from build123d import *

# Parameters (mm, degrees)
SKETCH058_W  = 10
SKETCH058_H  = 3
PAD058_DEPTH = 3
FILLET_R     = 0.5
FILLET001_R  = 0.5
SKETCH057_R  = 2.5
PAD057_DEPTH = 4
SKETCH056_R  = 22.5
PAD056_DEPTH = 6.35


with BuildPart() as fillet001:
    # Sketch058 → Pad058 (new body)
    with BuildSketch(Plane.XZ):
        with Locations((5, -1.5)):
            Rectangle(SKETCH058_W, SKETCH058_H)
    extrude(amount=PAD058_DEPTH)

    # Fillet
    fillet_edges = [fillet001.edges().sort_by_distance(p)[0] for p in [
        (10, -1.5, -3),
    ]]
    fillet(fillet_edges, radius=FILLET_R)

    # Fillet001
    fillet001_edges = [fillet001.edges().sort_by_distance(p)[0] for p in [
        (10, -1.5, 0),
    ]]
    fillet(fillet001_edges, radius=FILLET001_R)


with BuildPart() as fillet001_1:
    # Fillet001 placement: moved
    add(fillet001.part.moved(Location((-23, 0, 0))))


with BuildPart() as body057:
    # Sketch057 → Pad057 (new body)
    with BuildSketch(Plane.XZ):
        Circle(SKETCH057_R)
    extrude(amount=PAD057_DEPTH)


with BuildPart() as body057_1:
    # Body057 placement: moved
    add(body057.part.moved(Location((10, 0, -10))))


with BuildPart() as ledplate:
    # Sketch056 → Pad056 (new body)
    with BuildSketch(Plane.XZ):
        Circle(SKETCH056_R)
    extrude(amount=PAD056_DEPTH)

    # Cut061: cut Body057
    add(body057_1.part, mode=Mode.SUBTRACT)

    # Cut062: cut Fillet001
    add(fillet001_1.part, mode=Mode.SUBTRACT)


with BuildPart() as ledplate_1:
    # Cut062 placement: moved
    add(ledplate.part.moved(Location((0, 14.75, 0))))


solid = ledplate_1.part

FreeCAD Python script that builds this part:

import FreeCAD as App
import Part
import Sketcher

V = App.Vector


def edges_at(feature, points):
    """Names of the edges that pass closest to the given points."""
    edges = feature.Shape.Edges
    near = lambda p: min(range(len(edges)), key=lambda i: edges[i].distToShape(Part.Vertex(*p))[0])
    return sorted({f"Edge{near(p) + 1}" for p in points})


def add_polygon(sketch, points):
    """Adds a closed chain of lines whose ends are joined by coincident constraints."""
    first, n = sketch.GeometryCount, len(points)
    for a, b in zip(points, points[1:] + points[:1]):
        sketch.addGeometry(Part.LineSegment(App.Vector(*a, 0), App.Vector(*b, 0)), False)
    for i in range(n):
        sketch.addConstraint(Sketcher.Constraint("Coincident", first + i, 2, first + (i + 1) % n, 1))

doc = App.newDocument("Part")
params = doc.addObject("Spreadsheet::Sheet", "Params")
for row, (alias, value) in enumerate([
    ("sketch1_width", "10 mm"),
    ("sketch1_height", "3 mm"),
    ("pad1_length", "3 mm"),
    ("fillet_radius", "0.5 mm"),
    ("fillet2_radius", "0.5 mm"),
    ("sketch2_diameter", "5 mm"),
    ("pad2_length", "4 mm"),
    ("sketch3_diameter", "45 mm"),
    ("pad3_length", "6.35 mm"),
], start=1):
    params.set(f"A{row}", alias)
    params.set(f"B{row}", "=" + value)
    params.setAlias(f"B{row}", alias)

body = doc.addObject("PartDesign::Body", "Body")

sketch1 = body.newObject("Sketcher::SketchObject", "Sketch")
sketch1.AttachmentSupport = (doc.getObject("XZ_Plane"), [""])
sketch1.MapMode = "FlatFace"
add_polygon(sketch1, [(0, 0), (0, -3), (10, -3), (10, 0)])
sketch1.addConstraint([
    Sketcher.Constraint("Vertical", 0),
    Sketcher.Constraint("Horizontal", 1),
    Sketcher.Constraint("Vertical", 2),
    Sketcher.Constraint("Horizontal", 3),
    Sketcher.Constraint("Coincident", 3, 2, -1, 1),
    Sketcher.Constraint("DistanceX", 1, 1, 1, 2, 10.0),
    Sketcher.Constraint("DistanceY", 0, 2, 0, 1, 3.0),
])
sketch1.setExpression("Constraints[9]", "Params.sketch1_width")
sketch1.setExpression("Constraints[10]", "Params.sketch1_height")
pad1 = body.newObject("PartDesign::Pad", "Pad")
pad1.Profile = sketch1
pad1.setExpression("Length", "Params.pad1_length")
doc.recompute()

fillet = body.newObject("PartDesign::Fillet", "Fillet")
fillet.Base = (pad1, edges_at(pad1, [(10, -1.5, -3)]))
fillet.setExpression("Radius", "Params.fillet_radius")
doc.recompute()

fillet2 = body.newObject("PartDesign::Fillet", "Fillet001")
fillet2.Base = (fillet, edges_at(fillet, [(10, -1.5, 0)]))
fillet2.setExpression("Radius", "Params.fillet2_radius")
body2 = doc.addObject("PartDesign::Body", "Body001")
doc.recompute()

body.Placement = App.Placement(V(-23, 0, 0), App.Rotation(V(0, 0, 1), 0))
boolean = body2.newObject("PartDesign::Boolean", "Boolean")
boolean.Type = "Fuse"
boolean.addObjects([body])
body3 = doc.addObject("PartDesign::Body", "Body002")

sketch2 = body3.newObject("Sketcher::SketchObject", "Sketch001")
sketch2.AttachmentSupport = (doc.getObject("XZ_Plane002"), [""])
sketch2.MapMode = "FlatFace"
sketch2.addGeometry(Part.Circle(V(0, 0, 0), V(0, 0, 1), 2.5), False)
sketch2.addConstraint([
    Sketcher.Constraint("Coincident", 0, 3, -1, 1),
    Sketcher.Constraint("Diameter", 0, 5.0),
])
sketch2.setExpression("Constraints[1]", "Params.sketch2_diameter")
pad2 = body3.newObject("PartDesign::Pad", "Pad001")
pad2.Profile = sketch2
pad2.setExpression("Length", "Params.pad2_length")
body4 = doc.addObject("PartDesign::Body", "Body003")
doc.recompute()

body3.Placement = App.Placement(V(10, 0, -10), App.Rotation(V(0, 0, 1), 0))
boolean2 = body4.newObject("PartDesign::Boolean", "Boolean001")
boolean2.Type = "Fuse"
boolean2.addObjects([body3])
body5 = doc.addObject("PartDesign::Body", "Body004")

sketch3 = body5.newObject("Sketcher::SketchObject", "Sketch002")
sketch3.AttachmentSupport = (doc.getObject("XZ_Plane004"), [""])
sketch3.MapMode = "FlatFace"
sketch3.addGeometry(Part.Circle(V(0, 0, 0), V(0, 0, 1), 22), False)
sketch3.addConstraint([
    Sketcher.Constraint("Coincident", 0, 3, -1, 1),
    Sketcher.Constraint("Diameter", 0, 45.0),
])
sketch3.setExpression("Constraints[1]", "Params.sketch3_diameter")
pad3 = body5.newObject("PartDesign::Pad", "Pad002")
pad3.Profile = sketch3
pad3.setExpression("Length", "Params.pad3_length")
doc.recompute()

boolean3 = body5.newObject("PartDesign::Boolean", "Boolean002")
boolean3.Type = "Cut"
boolean3.addObjects([body4])
doc.recompute()

boolean4 = body5.newObject("PartDesign::Boolean", "Boolean003")
boolean4.Type = "Cut"
boolean4.addObjects([body2])
body6 = doc.addObject("PartDesign::Body", "Body005")
doc.recompute()

body5.Placement = App.Placement(V(0, 14.75, 0), App.Rotation(V(0, 0, 1), 0))
boolean5 = body6.newObject("PartDesign::Boolean", "Boolean004")
boolean5.Type = "Fuse"
boolean5.addObjects([body5])

doc.recompute()
